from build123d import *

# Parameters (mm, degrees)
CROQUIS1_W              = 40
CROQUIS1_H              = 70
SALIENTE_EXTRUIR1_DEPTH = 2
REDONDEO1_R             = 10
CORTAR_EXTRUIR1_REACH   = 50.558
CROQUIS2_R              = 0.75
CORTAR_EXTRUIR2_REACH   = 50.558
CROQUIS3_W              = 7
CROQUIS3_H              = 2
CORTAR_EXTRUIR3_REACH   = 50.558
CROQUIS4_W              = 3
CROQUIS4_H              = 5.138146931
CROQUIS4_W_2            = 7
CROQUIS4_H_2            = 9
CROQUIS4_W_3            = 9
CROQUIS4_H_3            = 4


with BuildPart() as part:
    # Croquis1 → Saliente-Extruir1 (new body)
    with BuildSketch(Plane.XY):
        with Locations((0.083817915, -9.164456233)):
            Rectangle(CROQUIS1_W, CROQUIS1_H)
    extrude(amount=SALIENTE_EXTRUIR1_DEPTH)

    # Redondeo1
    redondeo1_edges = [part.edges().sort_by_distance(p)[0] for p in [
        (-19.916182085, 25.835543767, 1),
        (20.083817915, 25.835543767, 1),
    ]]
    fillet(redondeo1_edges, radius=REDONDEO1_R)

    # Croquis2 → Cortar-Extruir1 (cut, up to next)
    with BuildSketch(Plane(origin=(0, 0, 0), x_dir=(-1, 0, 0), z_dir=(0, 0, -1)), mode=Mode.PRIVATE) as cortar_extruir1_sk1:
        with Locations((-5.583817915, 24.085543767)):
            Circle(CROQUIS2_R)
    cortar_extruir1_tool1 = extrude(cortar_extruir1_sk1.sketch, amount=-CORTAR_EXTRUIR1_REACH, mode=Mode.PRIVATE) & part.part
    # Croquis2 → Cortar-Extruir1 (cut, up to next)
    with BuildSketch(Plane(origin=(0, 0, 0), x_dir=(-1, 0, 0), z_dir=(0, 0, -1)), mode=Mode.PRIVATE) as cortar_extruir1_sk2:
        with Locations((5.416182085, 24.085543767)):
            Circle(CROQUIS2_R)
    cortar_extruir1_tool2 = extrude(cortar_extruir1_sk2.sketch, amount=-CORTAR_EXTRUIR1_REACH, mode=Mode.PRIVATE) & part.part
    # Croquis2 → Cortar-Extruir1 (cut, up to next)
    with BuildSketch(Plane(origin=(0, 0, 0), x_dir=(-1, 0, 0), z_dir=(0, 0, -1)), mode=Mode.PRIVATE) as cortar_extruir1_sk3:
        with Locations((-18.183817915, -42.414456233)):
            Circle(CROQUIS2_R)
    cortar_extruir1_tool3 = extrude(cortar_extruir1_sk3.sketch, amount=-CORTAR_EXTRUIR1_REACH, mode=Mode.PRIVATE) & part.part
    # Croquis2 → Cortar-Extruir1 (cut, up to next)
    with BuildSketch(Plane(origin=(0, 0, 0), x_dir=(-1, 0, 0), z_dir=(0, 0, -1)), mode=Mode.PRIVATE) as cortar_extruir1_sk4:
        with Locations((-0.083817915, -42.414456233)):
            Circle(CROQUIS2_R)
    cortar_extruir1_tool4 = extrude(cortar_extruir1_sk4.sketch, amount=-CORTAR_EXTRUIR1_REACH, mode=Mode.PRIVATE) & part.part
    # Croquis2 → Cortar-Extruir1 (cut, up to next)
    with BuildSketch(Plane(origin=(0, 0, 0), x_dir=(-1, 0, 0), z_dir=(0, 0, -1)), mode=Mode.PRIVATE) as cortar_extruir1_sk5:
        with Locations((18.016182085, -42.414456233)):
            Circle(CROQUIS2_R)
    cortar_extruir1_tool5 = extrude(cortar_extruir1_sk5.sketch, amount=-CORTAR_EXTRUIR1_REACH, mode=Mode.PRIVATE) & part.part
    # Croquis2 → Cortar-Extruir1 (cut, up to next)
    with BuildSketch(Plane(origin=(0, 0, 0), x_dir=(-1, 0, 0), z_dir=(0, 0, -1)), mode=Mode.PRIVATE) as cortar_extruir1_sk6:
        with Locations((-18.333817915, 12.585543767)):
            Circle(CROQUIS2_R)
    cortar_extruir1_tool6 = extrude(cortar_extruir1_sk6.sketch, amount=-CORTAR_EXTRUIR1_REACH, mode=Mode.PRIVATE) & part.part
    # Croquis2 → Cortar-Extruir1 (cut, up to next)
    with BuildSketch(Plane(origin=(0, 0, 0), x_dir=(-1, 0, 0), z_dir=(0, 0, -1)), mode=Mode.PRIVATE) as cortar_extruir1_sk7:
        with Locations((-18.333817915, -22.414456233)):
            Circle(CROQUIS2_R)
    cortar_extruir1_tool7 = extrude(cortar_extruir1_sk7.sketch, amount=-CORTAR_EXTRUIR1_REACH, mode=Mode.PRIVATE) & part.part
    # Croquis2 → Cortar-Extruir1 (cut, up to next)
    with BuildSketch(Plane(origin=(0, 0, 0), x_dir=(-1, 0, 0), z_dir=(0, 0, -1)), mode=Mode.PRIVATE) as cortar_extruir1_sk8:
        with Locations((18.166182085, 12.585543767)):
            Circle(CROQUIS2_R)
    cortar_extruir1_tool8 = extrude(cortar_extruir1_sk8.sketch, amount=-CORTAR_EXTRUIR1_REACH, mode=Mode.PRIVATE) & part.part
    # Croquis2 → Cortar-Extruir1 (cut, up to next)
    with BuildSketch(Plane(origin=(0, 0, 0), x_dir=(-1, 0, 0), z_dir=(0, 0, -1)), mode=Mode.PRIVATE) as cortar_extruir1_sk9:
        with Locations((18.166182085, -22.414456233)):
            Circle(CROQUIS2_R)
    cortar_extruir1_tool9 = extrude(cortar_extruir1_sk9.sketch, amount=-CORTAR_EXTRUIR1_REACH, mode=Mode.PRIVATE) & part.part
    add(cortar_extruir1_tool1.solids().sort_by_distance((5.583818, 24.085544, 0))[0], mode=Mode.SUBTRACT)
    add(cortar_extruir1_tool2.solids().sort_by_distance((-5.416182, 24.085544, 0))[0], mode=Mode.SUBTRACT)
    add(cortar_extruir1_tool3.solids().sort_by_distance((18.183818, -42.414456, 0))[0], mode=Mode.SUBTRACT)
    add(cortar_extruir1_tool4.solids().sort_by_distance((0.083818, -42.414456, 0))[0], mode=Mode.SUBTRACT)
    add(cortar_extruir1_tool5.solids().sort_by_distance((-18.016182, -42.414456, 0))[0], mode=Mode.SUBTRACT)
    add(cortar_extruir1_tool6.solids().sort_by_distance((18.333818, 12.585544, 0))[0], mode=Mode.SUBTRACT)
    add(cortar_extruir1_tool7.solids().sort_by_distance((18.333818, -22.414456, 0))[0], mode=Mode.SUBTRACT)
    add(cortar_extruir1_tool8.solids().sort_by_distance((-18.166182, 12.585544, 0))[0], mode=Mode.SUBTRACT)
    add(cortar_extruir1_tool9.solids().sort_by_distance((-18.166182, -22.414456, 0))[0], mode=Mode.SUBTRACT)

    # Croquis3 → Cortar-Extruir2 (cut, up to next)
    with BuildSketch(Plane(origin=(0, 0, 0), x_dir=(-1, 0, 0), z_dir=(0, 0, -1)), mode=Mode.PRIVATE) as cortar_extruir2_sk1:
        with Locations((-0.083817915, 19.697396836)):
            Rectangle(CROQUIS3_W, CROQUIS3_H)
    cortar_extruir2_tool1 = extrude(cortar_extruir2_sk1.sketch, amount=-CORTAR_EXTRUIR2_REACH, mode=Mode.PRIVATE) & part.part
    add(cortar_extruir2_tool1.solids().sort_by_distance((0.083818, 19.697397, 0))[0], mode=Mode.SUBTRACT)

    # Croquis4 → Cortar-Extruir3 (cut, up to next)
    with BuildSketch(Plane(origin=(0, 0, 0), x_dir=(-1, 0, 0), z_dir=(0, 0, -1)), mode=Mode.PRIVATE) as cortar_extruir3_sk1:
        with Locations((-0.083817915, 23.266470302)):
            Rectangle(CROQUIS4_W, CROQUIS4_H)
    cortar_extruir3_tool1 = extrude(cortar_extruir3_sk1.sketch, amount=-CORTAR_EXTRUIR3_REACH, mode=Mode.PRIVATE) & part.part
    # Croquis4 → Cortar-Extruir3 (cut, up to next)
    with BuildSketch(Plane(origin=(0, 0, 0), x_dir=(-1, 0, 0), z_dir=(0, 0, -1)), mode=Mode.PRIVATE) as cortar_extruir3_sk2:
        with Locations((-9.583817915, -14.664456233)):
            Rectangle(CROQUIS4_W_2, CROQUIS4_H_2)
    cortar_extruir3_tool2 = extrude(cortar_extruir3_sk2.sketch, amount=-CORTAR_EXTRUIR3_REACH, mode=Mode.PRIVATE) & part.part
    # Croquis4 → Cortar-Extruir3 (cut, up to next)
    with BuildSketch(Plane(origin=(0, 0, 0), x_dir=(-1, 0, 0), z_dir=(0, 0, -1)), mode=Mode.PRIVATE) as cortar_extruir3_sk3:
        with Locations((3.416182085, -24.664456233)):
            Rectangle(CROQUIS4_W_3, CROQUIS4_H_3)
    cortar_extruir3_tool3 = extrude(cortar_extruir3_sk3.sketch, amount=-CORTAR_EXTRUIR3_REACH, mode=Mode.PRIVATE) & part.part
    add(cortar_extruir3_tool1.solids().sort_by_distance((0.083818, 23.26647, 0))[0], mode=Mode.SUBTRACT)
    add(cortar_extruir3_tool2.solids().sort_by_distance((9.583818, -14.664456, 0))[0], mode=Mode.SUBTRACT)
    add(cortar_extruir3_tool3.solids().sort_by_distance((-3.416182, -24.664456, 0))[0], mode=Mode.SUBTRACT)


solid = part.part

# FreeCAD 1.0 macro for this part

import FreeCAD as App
import Part
import Sketcher
Q = App.Units.Quantity


def edges_at(feature, points):
    """Names of the edges that pass closest to the given points."""
    edges = feature.Shape.Edges
    near = lambda p: min(range(len(edges)), key=lambda i: edges[i].distToShape(Part.Vertex(*p))[0])
    return sorted({f"Edge{near(p) + 1}" for p in points})

doc = App.newDocument("Part")
body = doc.addObject("PartDesign::Body", "Body")

sketch1 = body.newObject("Sketcher::SketchObject", "Sketch")
sketch1.AttachmentSupport = (doc.getObject("XY_Plane"), [""])
sketch1.MapMode = "FlatFace"
sketch1.addGeometry(Part.LineSegment(App.Vector(-20, 26, 0), App.Vector(-20, -44, 0)), False)
sketch1.addGeometry(Part.LineSegment(App.Vector(-20, -44, 0), App.Vector(20, -44, 0)), False)
sketch1.addGeometry(Part.LineSegment(App.Vector(20, -44, 0), App.Vector(20, 26, 0)), False)
sketch1.addGeometry(Part.LineSegment(App.Vector(20, 26, 0), App.Vector(-20, 26, 0)), False)
sketch1.addConstraint(Sketcher.Constraint("Coincident", 0, 2, 1, 1))
sketch1.addConstraint(Sketcher.Constraint("Coincident", 1, 2, 2, 1))
sketch1.addConstraint(Sketcher.Constraint("Coincident", 2, 2, 3, 1))
sketch1.addConstraint(Sketcher.Constraint("Coincident", 3, 2, 0, 1))
sketch1.addConstraint(Sketcher.Constraint("Vertical", 0))
sketch1.addConstraint(Sketcher.Constraint("Horizontal", 1))
sketch1.addConstraint(Sketcher.Constraint("Vertical", 2))
sketch1.addConstraint(Sketcher.Constraint("Horizontal", 3))
sketch1.addConstraint(Sketcher.Constraint("DistanceX", 1, 1, 1, 2, Q("40 mm")))
sketch1.addConstraint(Sketcher.Constraint("DistanceY", 0, 2, 0, 1, Q("70 mm")))
sketch1.addConstraint(Sketcher.Constraint("DistanceX", 0, 2, -1, 1, Q("19.916182 mm")))
sketch1.addConstraint(Sketcher.Constraint("DistanceY", 0, 2, -1, 1, Q("44.164456 mm")))
pad1 = body.newObject("PartDesign::Pad", "Pad")
pad1.Profile = sketch1
pad1.Length = 2
doc.recompute()

fillet = body.newObject("PartDesign::Fillet", "Fillet")
fillet.Base = (pad1, edges_at(pad1, [(-19.916, 25.836, 1), (20.084, 25.836, 1)]))
fillet.Radius = 10

sketch2 = body.newObject("Sketcher::SketchObject", "Sketch001")
sketch2.AttachmentSupport = (doc.getObject("XY_Plane"), [""])
sketch2.MapMode = "FlatFace"
sketch2.addGeometry(Part.Circle(App.Vector(5.6, 24.1, 0), App.Vector(0, 0, 1), 0.8), False)
sketch2.addConstraint(Sketcher.Constraint("Diameter", 0, Q("1.5 mm")))
sketch2.addConstraint(Sketcher.Constraint("DistanceX", -1, 1, 0, 3, Q("5.583818 mm")))
sketch2.addConstraint(Sketcher.Constraint("DistanceY", -1, 1, 0, 3, Q("24.085544 mm")))
pocket1 = body.newObject("PartDesign::Pocket", "Pocket")
pocket1.Profile = sketch2
pocket1.Type = "UpToFirst"
pocket1.Reversed = True

sketch3 = body.newObject("Sketcher::SketchObject", "Sketch002")
sketch3.AttachmentSupport = (doc.getObject("XY_Plane"), [""])
sketch3.MapMode = "FlatFace"
sketch3.addGeometry(Part.Circle(App.Vector(-5.4, 24.1, 0), App.Vector(0, 0, 1), 0.8), False)
sketch3.addConstraint(Sketcher.Constraint("Diameter", 0, Q("1.5 mm")))
sketch3.addConstraint(Sketcher.Constraint("DistanceX", 0, 3, -1, 1, Q("5.416182 mm")))
sketch3.addConstraint(Sketcher.Constraint("DistanceY", -1, 1, 0, 3, Q("24.085544 mm")))
pocket2 = body.newObject("PartDesign::Pocket", "Pocket001")
pocket2.Profile = sketch3
pocket2.Type = "UpToFirst"
pocket2.Reversed = True

sketch4 = body.newObject("Sketcher::SketchObject", "Sketch003")
sketch4.AttachmentSupport = (doc.getObject("XY_Plane"), [""])
sketch4.MapMode = "FlatFace"
sketch4.addGeometry(Part.Circle(App.Vector(18.2, -42.4, 0), App.Vector(0, 0, 1), 0.8), False)
sketch4.addConstraint(Sketcher.Constraint("Diameter", 0, Q("1.5 mm")))
sketch4.addConstraint(Sketcher.Constraint("DistanceX", -1, 1, 0, 3, Q("18.183818 mm")))
sketch4.addConstraint(Sketcher.Constraint("DistanceY", 0, 3, -1, 1, Q("42.414456 mm")))
pocket3 = body.newObject("PartDesign::Pocket", "Pocket002")
pocket3.Profile = sketch4
pocket3.Type = "UpToFirst"
pocket3.Reversed = True

sketch5 = body.newObject("Sketcher::SketchObject", "Sketch004")
sketch5.AttachmentSupport = (doc.getObject("XY_Plane"), [""])
sketch5.MapMode = "FlatFace"
sketch5.addGeometry(Part.Circle(App.Vector(0.1, -42.4, 0), App.Vector(0, 0, 1), 0.8), False)
sketch5.addConstraint(Sketcher.Constraint("Diameter", 0, Q("1.5 mm")))
sketch5.addConstraint(Sketcher.Constraint("DistanceX", -1, 1, 0, 3, Q("0.083818 mm")))
sketch5.addConstraint(Sketcher.Constraint("DistanceY", 0, 3, -1, 1, Q("42.414456 mm")))
pocket4 = body.newObject("PartDesign::Pocket", "Pocket003")
pocket4.Profile = sketch5
pocket4.Type = "UpToFirst"
pocket4.Reversed = True

sketch6 = body.newObject("Sketcher::SketchObject", "Sketch005")
sketch6.AttachmentSupport = (doc.getObject("XY_Plane"), [""])
sketch6.MapMode = "FlatFace"
sketch6.addGeometry(Part.Circle(App.Vector(-18, -42.4, 0), App.Vector(0, 0, 1), 0.8), False)
sketch6.addConstraint(Sketcher.Constraint("Diameter", 0, Q("1.5 mm")))
sketch6.addConstraint(Sketcher.Constraint("DistanceX", 0, 3, -1, 1, Q("18.016182 mm")))
sketch6.addConstraint(Sketcher.Constraint("DistanceY", 0, 3, -1, 1, Q("42.414456 mm")))
pocket5 = body.newObject("PartDesign::Pocket", "Pocket004")
pocket5.Profile = sketch6
pocket5.Type = "UpToFirst"
pocket5.Reversed = True

sketch7 = body.newObject("Sketcher::SketchObject", "Sketch006")
sketch7.AttachmentSupport = (doc.getObject("XY_Plane"), [""])
sketch7.MapMode = "FlatFace"
sketch7.addGeometry(Part.Circle(App.Vector(18.3, 12.6, 0), App.Vector(0, 0, 1), 0.8), False)
sketch7.addConstraint(Sketcher.Constraint("Diameter", 0, Q("1.5 mm")))
sketch7.addConstraint(Sketcher.Constraint("DistanceX", -1, 1, 0, 3, Q("18.333818 mm")))
sketch7.addConstraint(Sketcher.Constraint("DistanceY", -1, 1, 0, 3, Q("12.585544 mm")))
pocket6 = body.newObject("PartDesign::Pocket", "Pocket005")
pocket6.Profile = sketch7
pocket6.Type = "UpToFirst"
pocket6.Reversed = True

sketch8 = body.newObject("Sketcher::SketchObject", "Sketch007")
sketch8.AttachmentSupport = (doc.getObject("XY_Plane"), [""])
sketch8.MapMode = "FlatFace"
sketch8.addGeometry(Part.Circle(App.Vector(18.3, -22.4, 0), App.Vector(0, 0, 1), 0.8), False)
sketch8.addConstraint(Sketcher.Constraint("Diameter", 0, Q("1.5 mm")))
sketch8.addConstraint(Sketcher.Constraint("DistanceX", -1, 1, 0, 3, Q("18.333818 mm")))
sketch8.addConstraint(Sketcher.Constraint("DistanceY", 0, 3, -1, 1, Q("22.414456 mm")))
pocket7 = body.newObject("PartDesign::Pocket", "Pocket006")
pocket7.Profile = sketch8
pocket7.Type = "UpToFirst"
pocket7.Reversed = True

sketch9 = body.newObject("Sketcher::SketchObject", "Sketch008")
sketch9.AttachmentSupport = (doc.getObject("XY_Plane"), [""])
sketch9.MapMode = "FlatFace"
sketch9.addGeometry(Part.Circle(App.Vector(-18.2, 12.6, 0), App.Vector(0, 0, 1), 0.8), False)
sketch9.addConstraint(Sketcher.Constraint("Diameter", 0, Q("1.5 mm")))
sketch9.addConstraint(Sketcher.Constraint("DistanceX", 0, 3, -1, 1, Q("18.166182 mm")))
sketch9.addConstraint(Sketcher.Constraint("DistanceY", -1, 1, 0, 3, Q("12.585544 mm")))
pocket8 = body.newObject("PartDesign::Pocket", "Pocket007")
pocket8.Profile = sketch9
pocket8.Type = "UpToFirst"
pocket8.Reversed = True

sketch10 = body.newObject("Sketcher::SketchObject", "Sketch009")
sketch10.AttachmentSupport = (doc.getObject("XY_Plane"), [""])
sketch10.MapMode = "FlatFace"
sketch10.addGeometry(Part.Circle(App.Vector(-18.2, -22.4, 0), App.Vector(0, 0, 1), 0.8), False)
sketch10.addConstraint(Sketcher.Constraint("Diameter", 0, Q("1.5 mm")))
sketch10.addConstraint(Sketcher.Constraint("DistanceX", 0, 3, -1, 1, Q("18.166182 mm")))
sketch10.addConstraint(Sketcher.Constraint("DistanceY", 0, 3, -1, 1, Q("22.414456 mm")))
pocket9 = body.newObject("PartDesign::Pocket", "Pocket008")
pocket9.Profile = sketch10
pocket9.Type = "UpToFirst"
pocket9.Reversed = True

sketch11 = body.newObject("Sketcher::SketchObject", "Sketch010")
sketch11.AttachmentSupport = (doc.getObject("XY_Plane"), [""])
sketch11.MapMode = "FlatFace"
sketch11.addGeometry(Part.LineSegment(App.Vector(3.6, 20.7, 0), App.Vector(3.6, 18.7, 0)), False)
sketch11.addGeometry(Part.LineSegment(App.Vector(3.6, 18.7, 0), App.Vector(-3.4, 18.7, 0)), False)
sketch11.addGeometry(Part.LineSegment(App.Vector(-3.4, 18.7, 0), App.Vector(-3.4, 20.7, 0)), False)
sketch11.addGeometry(Part.LineSegment(App.Vector(-3.4, 20.7, 0), App.Vector(3.6, 20.7, 0)), False)
sketch11.addConstraint(Sketcher.Constraint("Coincident", 0, 2, 1, 1))
sketch11.addConstraint(Sketcher.Constraint("Coincident", 1, 2, 2, 1))
sketch11.addConstraint(Sketcher.Constraint("Coincident", 2, 2, 3, 1))
sketch11.addConstraint(Sketcher.Constraint("Coincident", 3, 2, 0, 1))
sketch11.addConstraint(Sketcher.Constraint("Vertical", 0))
sketch11.addConstraint(Sketcher.Constraint("Horizontal", 1))
sketch11.addConstraint(Sketcher.Constraint("Vertical", 2))
sketch11.addConstraint(Sketcher.Constraint("Horizontal", 3))
sketch11.addConstraint(Sketcher.Constraint("DistanceX", 1, 2, 1, 1, Q("7 mm")))
sketch11.addConstraint(Sketcher.Constraint("DistanceY", 0, 2, 0, 1, Q("2 mm")))
sketch11.addConstraint(Sketcher.Constraint("DistanceX", -1, 1, 0, 2, Q("3.583818 mm")))
sketch11.addConstraint(Sketcher.Constraint("DistanceY", -1, 1, 0, 2, Q("18.697397 mm")))
pocket10 = body.newObject("PartDesign::Pocket", "Pocket009")
pocket10.Profile = sketch11
pocket10.Type = "UpToFirst"
pocket10.Reversed = True

sketch12 = body.newObject("Sketcher::SketchObject", "Sketch011")
sketch12.AttachmentSupport = (doc.getObject("XY_Plane"), [""])
sketch12.MapMode = "FlatFace"
sketch12.addGeometry(Part.LineSegment(App.Vector(1.6, 25.8, 0), App.Vector(1.6, 20.7, 0)), False)
sketch12.addGeometry(Part.LineSegment(App.Vector(1.6, 20.7, 0), App.Vector(-1.4, 20.7, 0)), False)
sketch12.addGeometry(Part.LineSegment(App.Vector(-1.4, 20.7, 0), App.Vector(-1.4, 25.8, 0)), False)
sketch12.addGeometry(Part.LineSegment(App.Vector(-1.4, 25.8, 0), App.Vector(1.6, 25.8, 0)), False)
sketch12.addConstraint(Sketcher.Constraint("Coincident", 0, 2, 1, 1))
sketch12.addConstraint(Sketcher.Constraint("Coincident", 1, 2, 2, 1))
sketch12.addConstraint(Sketcher.Constraint("Coincident", 2, 2, 3, 1))
sketch12.addConstraint(Sketcher.Constraint("Coincident", 3, 2, 0, 1))
sketch12.addConstraint(Sketcher.Constraint("Vertical", 0))
sketch12.addConstraint(Sketcher.Constraint("Horizontal", 1))
sketch12.addConstraint(Sketcher.Constraint("Vertical", 2))
sketch12.addConstraint(Sketcher.Constraint("Horizontal", 3))
sketch12.addConstraint(Sketcher.Constraint("DistanceX", 1, 2, 1, 1, Q("3 mm")))
sketch12.addConstraint(Sketcher.Constraint("DistanceY", 0, 2, 0, 1, Q("5.138147 mm")))
sketch12.addConstraint(Sketcher.Constraint("DistanceX", -1, 1, 0, 2, Q("1.583818 mm")))
sketch12.addConstraint(Sketcher.Constraint("DistanceY", -1, 1, 0, 2, Q("20.697397 mm")))
pocket11 = body.newObject("PartDesign::Pocket", "Pocket010")
pocket11.Profile = sketch12
pocket11.Type = "UpToFirst"
pocket11.Reversed = True

sketch13 = body.newObject("Sketcher::SketchObject", "Sketch012")
sketch13.AttachmentSupport = (doc.getObject("XY_Plane"), [""])
sketch13.MapMode = "FlatFace"
sketch13.addGeometry(Part.LineSegment(App.Vector(13, -10, 0), App.Vector(13, -19, 0)), False)
sketch13.addGeometry(Part.LineSegment(App.Vector(13, -19, 0), App.Vector(6, -19, 0)), False)
sketch13.addGeometry(Part.LineSegment(App.Vector(6, -19, 0), App.Vector(6, -10, 0)), False)
sketch13.addGeometry(Part.LineSegment(App.Vector(6, -10, 0), App.Vector(13, -10, 0)), False)
sketch13.addConstraint(Sketcher.Constraint("Coincident", 0, 2, 1, 1))
sketch13.addConstraint(Sketcher.Constraint("Coincident", 1, 2, 2, 1))
sketch13.addConstraint(Sketcher.Constraint("Coincident", 2, 2, 3, 1))
sketch13.addConstraint(Sketcher.Constraint("Coincident", 3, 2, 0, 1))
sketch13.addConstraint(Sketcher.Constraint("Vertical", 0))
sketch13.addConstraint(Sketcher.Constraint("Horizontal", 1))
sketch13.addConstraint(Sketcher.Constraint("Vertical", 2))
sketch13.addConstraint(Sketcher.Constraint("Horizontal", 3))
sketch13.addConstraint(Sketcher.Constraint("DistanceX", 1, 2, 1, 1, Q("7 mm")))
sketch13.addConstraint(Sketcher.Constraint("DistanceY", 0, 2, 0, 1, Q("9 mm")))
sketch13.addConstraint(Sketcher.Constraint("DistanceX", -1, 1, 0, 2, Q("13.083818 mm")))
sketch13.addConstraint(Sketcher.Constraint("DistanceY", 0, 2, -1, 1, Q("19.164456 mm")))
pocket12 = body.newObject("PartDesign::Pocket", "Pocket011")
pocket12.Profile = sketch13
pocket12.Type = "UpToFirst"
pocket12.Reversed = True

sketch14 = body.newObject("Sketcher::SketchObject", "Sketch013")
sketch14.AttachmentSupport = (doc.getObject("XY_Plane"), [""])
sketch14.MapMode = "FlatFace"
sketch14.addGeometry(Part.LineSegment(App.Vector(1.1, -22.7, 0), App.Vector(1.1, -26.7, 0)), False)
sketch14.addGeometry(Part.LineSegment(App.Vector(1.1, -26.7, 0), App.Vector(-7.9, -26.7, 0)), False)
sketch14.addGeometry(Part.LineSegment(App.Vector(-7.9, -26.7, 0), App.Vector(-7.9, -22.7, 0)), False)
sketch14.addGeometry(Part.LineSegment(App.Vector(-7.9, -22.7, 0), App.Vector(1.1, -22.7, 0)), False)
sketch14.addConstraint(Sketcher.Constraint("Coincident", 0, 2, 1, 1))
sketch14.addConstraint(Sketcher.Constraint("Coincident", 1, 2, 2, 1))
sketch14.addConstraint(Sketcher.Constraint("Coincident", 2, 2, 3, 1))
sketch14.addConstraint(Sketcher.Constraint("Coincident", 3, 2, 0, 1))
sketch14.addConstraint(Sketcher.Constraint("Vertical", 0))
sketch14.addConstraint(Sketcher.Constraint("Horizontal", 1))
sketch14.addConstraint(Sketcher.Constraint("Vertical", 2))
sketch14.addConstraint(Sketcher.Constraint("Horizontal", 3))
sketch14.addConstraint(Sketcher.Constraint("DistanceX", 1, 2, 1, 1, Q("9 mm")))
sketch14.addConstraint(Sketcher.Constraint("DistanceY", 0, 2, 0, 1, Q("4 mm")))
sketch14.addConstraint(Sketcher.Constraint("DistanceX", -1, 1, 0, 2, Q("1.083818 mm")))
sketch14.addConstraint(Sketcher.Constraint("DistanceY", 0, 2, -1, 1, Q("26.664456 mm")))
pocket13 = body.newObject("PartDesign::Pocket", "Pocket012")
pocket13.Profile = sketch14
pocket13.Type = "UpToFirst"
pocket13.Reversed = True

doc.recompute()
